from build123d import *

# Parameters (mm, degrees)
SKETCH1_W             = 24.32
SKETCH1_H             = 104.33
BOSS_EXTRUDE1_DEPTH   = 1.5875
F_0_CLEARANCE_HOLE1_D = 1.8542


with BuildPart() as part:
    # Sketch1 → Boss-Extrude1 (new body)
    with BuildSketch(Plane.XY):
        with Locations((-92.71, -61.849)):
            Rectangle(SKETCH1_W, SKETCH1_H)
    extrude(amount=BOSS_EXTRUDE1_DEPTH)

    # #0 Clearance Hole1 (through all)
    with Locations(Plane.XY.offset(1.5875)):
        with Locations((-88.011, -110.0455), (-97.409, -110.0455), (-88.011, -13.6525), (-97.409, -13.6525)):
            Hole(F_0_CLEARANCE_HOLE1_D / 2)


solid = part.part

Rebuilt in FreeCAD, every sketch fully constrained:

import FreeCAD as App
import Part
import Sketcher
from FreeCAD import Vector
Q = App.Units.Quantity

doc = App.newDocument("Part")
params = doc.addObject("Spreadsheet::Sheet", "Params")
for row, (alias, value) in enumerate([
    ("pad1_length", "0.0625 in"),
    ("sketch2_diameter", "0.073 in"),
    ("hole_diameter", "0.073 in"),
], start=1):
    params.set(f"A{row}", alias)
    params.set(f"B{row}", "=" + value)
    params.setAlias(f"B{row}", alias)

body = doc.addObject("PartDesign::Body", "Body")

# Sketch on XY plane
sketch1 = body.newObject("Sketcher::SketchObject", "Sketch")
sketch1.AttachmentSupport = (doc.getObject("XY_Plane"), [""])
sketch1.MapMode = "FlatFace"
sketch1.addGeometry([
    Part.LineSegment(Vector(-105, -10, 0), Vector(-105, -114, 0)),
    Part.LineSegment(Vector(-105, -114, 0), Vector(-81, -114, 0)),
    Part.LineSegment(Vector(-81, -114, 0), Vector(-81, -10, 0)),
    Part.LineSegment(Vector(-81, -10, 0), Vector(-105, -10, 0)),
], False)
sketch1.addConstraint([
    Sketcher.Constraint("Coincident", 0, 2, 1, 1),
    Sketcher.Constraint("Coincident", 1, 2, 2, 1),
    Sketcher.Constraint("Coincident", 2, 2, 3, 1),
    Sketcher.Constraint("Coincident", 3, 2, 0, 1),
    Sketcher.Constraint("Vertical", 0),
    Sketcher.Constraint("Horizontal", 1),
    Sketcher.Constraint("Vertical", 2),
    Sketcher.Constraint("Horizontal", 3),
    Sketcher.Constraint("DistanceX", 1, 1, 1, 2, 24.32),
    Sketcher.Constraint("DistanceY", 0, 2, 0, 1, 104.33),
    Sketcher.Constraint("DistanceX", 0, 2, -1, 1, 104.87),
    Sketcher.Constraint("DistanceY", 0, 2, -1, 1, 114.014),
])
pad1 = body.newObject("PartDesign::Pad", "Pad")
pad1.Profile = sketch1
pad1.setExpression("Length", "Params.pad1_length")

# Sketch on XY plane
sketch2 = body.newObject("Sketcher::SketchObject", "Sketch001")
sketch2.AttachmentSupport = (doc.getObject("XY_Plane"), [""])
sketch2.MapMode = "FlatFace"
sketch2.AttachmentOffset = App.Placement(Vector(0, 0, 0.0625 * 25.4), App.Rotation())
sketch2.addGeometry([
    Part.Circle(Vector(-88, -110, 0), Vector(0, 0, 1), 0.9),
    Part.Circle(Vector(-97.4, -110, 0), Vector(0, 0, 1), 0.9),
    Part.Circle(Vector(-88, -13.7, 0), Vector(0, 0, 1), 0.9),
    Part.Circle(Vector(-97.4, -13.7, 0), Vector(0, 0, 1), 0.9),
], False)
sketch2.addConstraint([
    Sketcher.Constraint("Equal", 0, 1),
    Sketcher.Constraint("Equal", 1, 2),
    Sketcher.Constraint("Equal", 2, 3),
    Sketcher.Constraint("Horizontal", 0, 3, 1, 3),
    Sketcher.Constraint("Horizontal", 2, 3, 3, 3),
    Sketcher.Constraint("Vertical", 0, 3, 2, 3),
    Sketcher.Constraint("Vertical", 1, 3, 3, 3),
    Sketcher.Constraint("Diameter", 0, Q("0.073 in")),
    Sketcher.Constraint("DistanceX", 1, 3, 0, 3, Q("0.37 in")),
    Sketcher.Constraint("DistanceX", 0, 3, -1, 1, Q("3.465 in")),
    Sketcher.Constraint("DistanceY", 0, 3, 2, 3, Q("3.795 in")),
    Sketcher.Constraint("DistanceY", 0, 3, -1, 1, Q("4.3325 in")),
])
sketch2.setExpression("Constraints[7]", "Params.sketch2_diameter")
doc.recompute()
hole = body.newObject("PartDesign::Hole", "Hole")
hole.Profile = sketch2
hole.ThreadType = "None"
hole.setExpression("Diameter", "Params.hole_diameter")
hole.DepthType = "ThroughAll"

doc.recompute()
